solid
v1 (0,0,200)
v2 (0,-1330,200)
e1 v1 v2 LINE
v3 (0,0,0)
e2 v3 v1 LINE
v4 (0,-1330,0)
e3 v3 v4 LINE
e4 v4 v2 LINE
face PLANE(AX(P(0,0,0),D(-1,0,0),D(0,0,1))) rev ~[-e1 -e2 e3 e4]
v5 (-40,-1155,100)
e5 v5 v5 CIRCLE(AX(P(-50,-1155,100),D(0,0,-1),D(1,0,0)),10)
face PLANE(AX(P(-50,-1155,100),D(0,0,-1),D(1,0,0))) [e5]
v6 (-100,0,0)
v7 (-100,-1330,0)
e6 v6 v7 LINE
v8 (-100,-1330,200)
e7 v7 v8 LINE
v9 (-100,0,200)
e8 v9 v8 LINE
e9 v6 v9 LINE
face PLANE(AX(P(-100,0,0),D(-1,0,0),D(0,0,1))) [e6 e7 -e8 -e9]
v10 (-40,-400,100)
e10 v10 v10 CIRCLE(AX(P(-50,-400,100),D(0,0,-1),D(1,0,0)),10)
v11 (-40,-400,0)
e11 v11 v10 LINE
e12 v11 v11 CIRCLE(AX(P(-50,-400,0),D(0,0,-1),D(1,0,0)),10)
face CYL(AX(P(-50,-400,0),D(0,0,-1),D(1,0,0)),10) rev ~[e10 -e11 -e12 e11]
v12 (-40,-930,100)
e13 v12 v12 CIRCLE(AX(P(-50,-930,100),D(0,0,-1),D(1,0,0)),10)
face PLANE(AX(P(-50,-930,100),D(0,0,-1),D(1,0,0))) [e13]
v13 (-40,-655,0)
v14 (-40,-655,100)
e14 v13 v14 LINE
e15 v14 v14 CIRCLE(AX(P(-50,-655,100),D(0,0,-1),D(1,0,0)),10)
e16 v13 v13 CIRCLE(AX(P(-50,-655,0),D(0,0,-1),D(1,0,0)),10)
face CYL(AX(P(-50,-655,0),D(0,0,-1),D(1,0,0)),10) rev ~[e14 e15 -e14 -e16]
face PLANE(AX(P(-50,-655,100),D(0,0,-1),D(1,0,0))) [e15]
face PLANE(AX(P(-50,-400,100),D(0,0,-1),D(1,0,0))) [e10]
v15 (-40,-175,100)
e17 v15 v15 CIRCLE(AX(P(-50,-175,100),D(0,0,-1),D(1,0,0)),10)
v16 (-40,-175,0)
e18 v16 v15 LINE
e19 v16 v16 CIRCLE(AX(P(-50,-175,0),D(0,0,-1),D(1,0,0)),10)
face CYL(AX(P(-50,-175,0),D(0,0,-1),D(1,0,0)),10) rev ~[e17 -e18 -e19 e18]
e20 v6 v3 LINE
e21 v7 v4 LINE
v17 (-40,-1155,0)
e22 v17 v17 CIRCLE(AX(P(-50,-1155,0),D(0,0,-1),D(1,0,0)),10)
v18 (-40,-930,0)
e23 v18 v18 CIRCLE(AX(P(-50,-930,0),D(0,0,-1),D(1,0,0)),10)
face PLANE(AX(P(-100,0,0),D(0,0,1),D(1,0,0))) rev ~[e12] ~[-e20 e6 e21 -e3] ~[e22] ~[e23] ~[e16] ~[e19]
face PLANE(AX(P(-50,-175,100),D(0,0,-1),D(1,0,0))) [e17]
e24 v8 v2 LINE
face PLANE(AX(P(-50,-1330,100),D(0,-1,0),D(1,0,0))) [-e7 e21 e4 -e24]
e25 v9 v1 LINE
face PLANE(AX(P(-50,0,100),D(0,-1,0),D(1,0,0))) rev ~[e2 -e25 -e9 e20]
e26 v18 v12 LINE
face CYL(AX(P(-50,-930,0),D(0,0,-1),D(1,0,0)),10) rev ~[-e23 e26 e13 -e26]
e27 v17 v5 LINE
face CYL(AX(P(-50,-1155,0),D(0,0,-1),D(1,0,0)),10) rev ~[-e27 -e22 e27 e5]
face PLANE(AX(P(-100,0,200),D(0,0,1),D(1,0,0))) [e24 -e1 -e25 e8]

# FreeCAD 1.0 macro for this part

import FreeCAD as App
import Part
import Sketcher

V = App.Vector
Q = App.Units.Quantity

doc = App.newDocument("Part")
body = doc.addObject("PartDesign::Body", "Body")

# Sketch on XZ plane
sketch1 = body.newObject("Sketcher::SketchObject", "Sketch")
sketch1.AttachmentSupport = (doc.getObject("XZ_Plane"), [""])
sketch1.MapMode = "FlatFace"
sketch1.addGeometry(Part.LineSegment(V(-100, 200, 0), V(-100, 0, 0)), False)
sketch1.addGeometry(Part.LineSegment(V(-100, 0, 0), V(0, 0, 0)), False)
sketch1.addGeometry(Part.LineSegment(V(0, 0, 0), V(0, 200, 0)), False)
sketch1.addGeometry(Part.LineSegment(V(0, 200, 0), V(-100, 200, 0)), False)
sketch1.addConstraint(Sketcher.Constraint("Coincident", 0, 2, 1, 1))
sketch1.addConstraint(Sketcher.Constraint("Coincident", 1, 2, 2, 1))
sketch1.addConstraint(Sketcher.Constraint("Coincident", 2, 2, 3, 1))
sketch1.addConstraint(Sketcher.Constraint("Coincident", 3, 2, 0, 1))
sketch1.addConstraint(Sketcher.Constraint("Vertical", 0))
sketch1.addConstraint(Sketcher.Constraint("Horizontal", 1))
sketch1.addConstraint(Sketcher.Constraint("Vertical", 2))
sketch1.addConstraint(Sketcher.Constraint("Horizontal", 3))
sketch1.addConstraint(Sketcher.Constraint("Coincident", 1, 2, -1, 1))
sketch1.addConstraint(Sketcher.Constraint("DistanceX", 1, 1, 1, 2, Q("100 mm")))
sketch1.addConstraint(Sketcher.Constraint("DistanceY", 0, 2, 0, 1, Q("200 mm")))
pad1 = body.newObject("PartDesign::Pad", "Pad")
pad1.Profile = sketch1
pad1.Length = 1330

# Sketch on XY plane
sketch2 = body.newObject("Sketcher::SketchObject", "Sketch001")
sketch2.AttachmentSupport = (doc.getObject("XY_Plane"), [""])
sketch2.MapMode = "FlatFace"
sketch2.addGeometry(Part.Circle(V(-50, -1155, 0), V(0, 0, 1), 10), False)
sketch2.addGeometry(Part.Circle(V(-50, -930, 0), V(0, 0, 1), 10), False)
sketch2.addGeometry(Part.Circle(V(-50, -655, 0), V(0, 0, 1), 10), False)
sketch2.addGeometry(Part.Circle(V(-50, -400, 0), V(0, 0, 1), 10), False)
sketch2.addGeometry(Part.Circle(V(-50, -175, 0), V(0, 0, 1), 10), False)
sketch2.addConstraint(Sketcher.Constraint("Equal", 0, 1))
sketch2.addConstraint(Sketcher.Constraint("Equal", 1, 2))
sketch2.addConstraint(Sketcher.Constraint("Equal", 2, 3))
sketch2.addConstraint(Sketcher.Constraint("Equal", 3, 4))
sketch2.addConstraint(Sketcher.Constraint("Vertical", 0, 3, 1, 3))
sketch2.addConstraint(Sketcher.Constraint("Vertical", 1, 3, 2, 3))
sketch2.addConstraint(Sketcher.Constraint("Vertical", 2, 3, 3, 3))
sketch2.addConstraint(Sketcher.Constraint("Vertical", 3, 3, 4, 3))
sketch2.addConstraint(Sketcher.Constraint("Diameter", 0, Q("20 mm")))
sketch2.addConstraint(Sketcher.Constraint("DistanceX", 0, 3, -1, 1, Q("50 mm")))
sketch2.addConstraint(Sketcher.Constraint("DistanceY", 0, 3, -1, 1, Q("1155 mm")))
sketch2.addConstraint(Sketcher.Constraint("DistanceY", 1, 3, -1, 1, Q("930 mm")))
sketch2.addConstraint(Sketcher.Constraint("DistanceY", 2, 3, -1, 1, Q("655 mm")))
sketch2.addConstraint(Sketcher.Constraint("DistanceY", 3, 3, -1, 1, Q("400 mm")))
sketch2.addConstraint(Sketcher.Constraint("DistanceY", 4, 3, -1, 1, Q("175 mm")))
pocket1 = body.newObject("PartDesign::Pocket", "Pocket")
pocket1.Profile = sketch2
pocket1.Length = 100
pocket1.Reversed = True

doc.recompute()
